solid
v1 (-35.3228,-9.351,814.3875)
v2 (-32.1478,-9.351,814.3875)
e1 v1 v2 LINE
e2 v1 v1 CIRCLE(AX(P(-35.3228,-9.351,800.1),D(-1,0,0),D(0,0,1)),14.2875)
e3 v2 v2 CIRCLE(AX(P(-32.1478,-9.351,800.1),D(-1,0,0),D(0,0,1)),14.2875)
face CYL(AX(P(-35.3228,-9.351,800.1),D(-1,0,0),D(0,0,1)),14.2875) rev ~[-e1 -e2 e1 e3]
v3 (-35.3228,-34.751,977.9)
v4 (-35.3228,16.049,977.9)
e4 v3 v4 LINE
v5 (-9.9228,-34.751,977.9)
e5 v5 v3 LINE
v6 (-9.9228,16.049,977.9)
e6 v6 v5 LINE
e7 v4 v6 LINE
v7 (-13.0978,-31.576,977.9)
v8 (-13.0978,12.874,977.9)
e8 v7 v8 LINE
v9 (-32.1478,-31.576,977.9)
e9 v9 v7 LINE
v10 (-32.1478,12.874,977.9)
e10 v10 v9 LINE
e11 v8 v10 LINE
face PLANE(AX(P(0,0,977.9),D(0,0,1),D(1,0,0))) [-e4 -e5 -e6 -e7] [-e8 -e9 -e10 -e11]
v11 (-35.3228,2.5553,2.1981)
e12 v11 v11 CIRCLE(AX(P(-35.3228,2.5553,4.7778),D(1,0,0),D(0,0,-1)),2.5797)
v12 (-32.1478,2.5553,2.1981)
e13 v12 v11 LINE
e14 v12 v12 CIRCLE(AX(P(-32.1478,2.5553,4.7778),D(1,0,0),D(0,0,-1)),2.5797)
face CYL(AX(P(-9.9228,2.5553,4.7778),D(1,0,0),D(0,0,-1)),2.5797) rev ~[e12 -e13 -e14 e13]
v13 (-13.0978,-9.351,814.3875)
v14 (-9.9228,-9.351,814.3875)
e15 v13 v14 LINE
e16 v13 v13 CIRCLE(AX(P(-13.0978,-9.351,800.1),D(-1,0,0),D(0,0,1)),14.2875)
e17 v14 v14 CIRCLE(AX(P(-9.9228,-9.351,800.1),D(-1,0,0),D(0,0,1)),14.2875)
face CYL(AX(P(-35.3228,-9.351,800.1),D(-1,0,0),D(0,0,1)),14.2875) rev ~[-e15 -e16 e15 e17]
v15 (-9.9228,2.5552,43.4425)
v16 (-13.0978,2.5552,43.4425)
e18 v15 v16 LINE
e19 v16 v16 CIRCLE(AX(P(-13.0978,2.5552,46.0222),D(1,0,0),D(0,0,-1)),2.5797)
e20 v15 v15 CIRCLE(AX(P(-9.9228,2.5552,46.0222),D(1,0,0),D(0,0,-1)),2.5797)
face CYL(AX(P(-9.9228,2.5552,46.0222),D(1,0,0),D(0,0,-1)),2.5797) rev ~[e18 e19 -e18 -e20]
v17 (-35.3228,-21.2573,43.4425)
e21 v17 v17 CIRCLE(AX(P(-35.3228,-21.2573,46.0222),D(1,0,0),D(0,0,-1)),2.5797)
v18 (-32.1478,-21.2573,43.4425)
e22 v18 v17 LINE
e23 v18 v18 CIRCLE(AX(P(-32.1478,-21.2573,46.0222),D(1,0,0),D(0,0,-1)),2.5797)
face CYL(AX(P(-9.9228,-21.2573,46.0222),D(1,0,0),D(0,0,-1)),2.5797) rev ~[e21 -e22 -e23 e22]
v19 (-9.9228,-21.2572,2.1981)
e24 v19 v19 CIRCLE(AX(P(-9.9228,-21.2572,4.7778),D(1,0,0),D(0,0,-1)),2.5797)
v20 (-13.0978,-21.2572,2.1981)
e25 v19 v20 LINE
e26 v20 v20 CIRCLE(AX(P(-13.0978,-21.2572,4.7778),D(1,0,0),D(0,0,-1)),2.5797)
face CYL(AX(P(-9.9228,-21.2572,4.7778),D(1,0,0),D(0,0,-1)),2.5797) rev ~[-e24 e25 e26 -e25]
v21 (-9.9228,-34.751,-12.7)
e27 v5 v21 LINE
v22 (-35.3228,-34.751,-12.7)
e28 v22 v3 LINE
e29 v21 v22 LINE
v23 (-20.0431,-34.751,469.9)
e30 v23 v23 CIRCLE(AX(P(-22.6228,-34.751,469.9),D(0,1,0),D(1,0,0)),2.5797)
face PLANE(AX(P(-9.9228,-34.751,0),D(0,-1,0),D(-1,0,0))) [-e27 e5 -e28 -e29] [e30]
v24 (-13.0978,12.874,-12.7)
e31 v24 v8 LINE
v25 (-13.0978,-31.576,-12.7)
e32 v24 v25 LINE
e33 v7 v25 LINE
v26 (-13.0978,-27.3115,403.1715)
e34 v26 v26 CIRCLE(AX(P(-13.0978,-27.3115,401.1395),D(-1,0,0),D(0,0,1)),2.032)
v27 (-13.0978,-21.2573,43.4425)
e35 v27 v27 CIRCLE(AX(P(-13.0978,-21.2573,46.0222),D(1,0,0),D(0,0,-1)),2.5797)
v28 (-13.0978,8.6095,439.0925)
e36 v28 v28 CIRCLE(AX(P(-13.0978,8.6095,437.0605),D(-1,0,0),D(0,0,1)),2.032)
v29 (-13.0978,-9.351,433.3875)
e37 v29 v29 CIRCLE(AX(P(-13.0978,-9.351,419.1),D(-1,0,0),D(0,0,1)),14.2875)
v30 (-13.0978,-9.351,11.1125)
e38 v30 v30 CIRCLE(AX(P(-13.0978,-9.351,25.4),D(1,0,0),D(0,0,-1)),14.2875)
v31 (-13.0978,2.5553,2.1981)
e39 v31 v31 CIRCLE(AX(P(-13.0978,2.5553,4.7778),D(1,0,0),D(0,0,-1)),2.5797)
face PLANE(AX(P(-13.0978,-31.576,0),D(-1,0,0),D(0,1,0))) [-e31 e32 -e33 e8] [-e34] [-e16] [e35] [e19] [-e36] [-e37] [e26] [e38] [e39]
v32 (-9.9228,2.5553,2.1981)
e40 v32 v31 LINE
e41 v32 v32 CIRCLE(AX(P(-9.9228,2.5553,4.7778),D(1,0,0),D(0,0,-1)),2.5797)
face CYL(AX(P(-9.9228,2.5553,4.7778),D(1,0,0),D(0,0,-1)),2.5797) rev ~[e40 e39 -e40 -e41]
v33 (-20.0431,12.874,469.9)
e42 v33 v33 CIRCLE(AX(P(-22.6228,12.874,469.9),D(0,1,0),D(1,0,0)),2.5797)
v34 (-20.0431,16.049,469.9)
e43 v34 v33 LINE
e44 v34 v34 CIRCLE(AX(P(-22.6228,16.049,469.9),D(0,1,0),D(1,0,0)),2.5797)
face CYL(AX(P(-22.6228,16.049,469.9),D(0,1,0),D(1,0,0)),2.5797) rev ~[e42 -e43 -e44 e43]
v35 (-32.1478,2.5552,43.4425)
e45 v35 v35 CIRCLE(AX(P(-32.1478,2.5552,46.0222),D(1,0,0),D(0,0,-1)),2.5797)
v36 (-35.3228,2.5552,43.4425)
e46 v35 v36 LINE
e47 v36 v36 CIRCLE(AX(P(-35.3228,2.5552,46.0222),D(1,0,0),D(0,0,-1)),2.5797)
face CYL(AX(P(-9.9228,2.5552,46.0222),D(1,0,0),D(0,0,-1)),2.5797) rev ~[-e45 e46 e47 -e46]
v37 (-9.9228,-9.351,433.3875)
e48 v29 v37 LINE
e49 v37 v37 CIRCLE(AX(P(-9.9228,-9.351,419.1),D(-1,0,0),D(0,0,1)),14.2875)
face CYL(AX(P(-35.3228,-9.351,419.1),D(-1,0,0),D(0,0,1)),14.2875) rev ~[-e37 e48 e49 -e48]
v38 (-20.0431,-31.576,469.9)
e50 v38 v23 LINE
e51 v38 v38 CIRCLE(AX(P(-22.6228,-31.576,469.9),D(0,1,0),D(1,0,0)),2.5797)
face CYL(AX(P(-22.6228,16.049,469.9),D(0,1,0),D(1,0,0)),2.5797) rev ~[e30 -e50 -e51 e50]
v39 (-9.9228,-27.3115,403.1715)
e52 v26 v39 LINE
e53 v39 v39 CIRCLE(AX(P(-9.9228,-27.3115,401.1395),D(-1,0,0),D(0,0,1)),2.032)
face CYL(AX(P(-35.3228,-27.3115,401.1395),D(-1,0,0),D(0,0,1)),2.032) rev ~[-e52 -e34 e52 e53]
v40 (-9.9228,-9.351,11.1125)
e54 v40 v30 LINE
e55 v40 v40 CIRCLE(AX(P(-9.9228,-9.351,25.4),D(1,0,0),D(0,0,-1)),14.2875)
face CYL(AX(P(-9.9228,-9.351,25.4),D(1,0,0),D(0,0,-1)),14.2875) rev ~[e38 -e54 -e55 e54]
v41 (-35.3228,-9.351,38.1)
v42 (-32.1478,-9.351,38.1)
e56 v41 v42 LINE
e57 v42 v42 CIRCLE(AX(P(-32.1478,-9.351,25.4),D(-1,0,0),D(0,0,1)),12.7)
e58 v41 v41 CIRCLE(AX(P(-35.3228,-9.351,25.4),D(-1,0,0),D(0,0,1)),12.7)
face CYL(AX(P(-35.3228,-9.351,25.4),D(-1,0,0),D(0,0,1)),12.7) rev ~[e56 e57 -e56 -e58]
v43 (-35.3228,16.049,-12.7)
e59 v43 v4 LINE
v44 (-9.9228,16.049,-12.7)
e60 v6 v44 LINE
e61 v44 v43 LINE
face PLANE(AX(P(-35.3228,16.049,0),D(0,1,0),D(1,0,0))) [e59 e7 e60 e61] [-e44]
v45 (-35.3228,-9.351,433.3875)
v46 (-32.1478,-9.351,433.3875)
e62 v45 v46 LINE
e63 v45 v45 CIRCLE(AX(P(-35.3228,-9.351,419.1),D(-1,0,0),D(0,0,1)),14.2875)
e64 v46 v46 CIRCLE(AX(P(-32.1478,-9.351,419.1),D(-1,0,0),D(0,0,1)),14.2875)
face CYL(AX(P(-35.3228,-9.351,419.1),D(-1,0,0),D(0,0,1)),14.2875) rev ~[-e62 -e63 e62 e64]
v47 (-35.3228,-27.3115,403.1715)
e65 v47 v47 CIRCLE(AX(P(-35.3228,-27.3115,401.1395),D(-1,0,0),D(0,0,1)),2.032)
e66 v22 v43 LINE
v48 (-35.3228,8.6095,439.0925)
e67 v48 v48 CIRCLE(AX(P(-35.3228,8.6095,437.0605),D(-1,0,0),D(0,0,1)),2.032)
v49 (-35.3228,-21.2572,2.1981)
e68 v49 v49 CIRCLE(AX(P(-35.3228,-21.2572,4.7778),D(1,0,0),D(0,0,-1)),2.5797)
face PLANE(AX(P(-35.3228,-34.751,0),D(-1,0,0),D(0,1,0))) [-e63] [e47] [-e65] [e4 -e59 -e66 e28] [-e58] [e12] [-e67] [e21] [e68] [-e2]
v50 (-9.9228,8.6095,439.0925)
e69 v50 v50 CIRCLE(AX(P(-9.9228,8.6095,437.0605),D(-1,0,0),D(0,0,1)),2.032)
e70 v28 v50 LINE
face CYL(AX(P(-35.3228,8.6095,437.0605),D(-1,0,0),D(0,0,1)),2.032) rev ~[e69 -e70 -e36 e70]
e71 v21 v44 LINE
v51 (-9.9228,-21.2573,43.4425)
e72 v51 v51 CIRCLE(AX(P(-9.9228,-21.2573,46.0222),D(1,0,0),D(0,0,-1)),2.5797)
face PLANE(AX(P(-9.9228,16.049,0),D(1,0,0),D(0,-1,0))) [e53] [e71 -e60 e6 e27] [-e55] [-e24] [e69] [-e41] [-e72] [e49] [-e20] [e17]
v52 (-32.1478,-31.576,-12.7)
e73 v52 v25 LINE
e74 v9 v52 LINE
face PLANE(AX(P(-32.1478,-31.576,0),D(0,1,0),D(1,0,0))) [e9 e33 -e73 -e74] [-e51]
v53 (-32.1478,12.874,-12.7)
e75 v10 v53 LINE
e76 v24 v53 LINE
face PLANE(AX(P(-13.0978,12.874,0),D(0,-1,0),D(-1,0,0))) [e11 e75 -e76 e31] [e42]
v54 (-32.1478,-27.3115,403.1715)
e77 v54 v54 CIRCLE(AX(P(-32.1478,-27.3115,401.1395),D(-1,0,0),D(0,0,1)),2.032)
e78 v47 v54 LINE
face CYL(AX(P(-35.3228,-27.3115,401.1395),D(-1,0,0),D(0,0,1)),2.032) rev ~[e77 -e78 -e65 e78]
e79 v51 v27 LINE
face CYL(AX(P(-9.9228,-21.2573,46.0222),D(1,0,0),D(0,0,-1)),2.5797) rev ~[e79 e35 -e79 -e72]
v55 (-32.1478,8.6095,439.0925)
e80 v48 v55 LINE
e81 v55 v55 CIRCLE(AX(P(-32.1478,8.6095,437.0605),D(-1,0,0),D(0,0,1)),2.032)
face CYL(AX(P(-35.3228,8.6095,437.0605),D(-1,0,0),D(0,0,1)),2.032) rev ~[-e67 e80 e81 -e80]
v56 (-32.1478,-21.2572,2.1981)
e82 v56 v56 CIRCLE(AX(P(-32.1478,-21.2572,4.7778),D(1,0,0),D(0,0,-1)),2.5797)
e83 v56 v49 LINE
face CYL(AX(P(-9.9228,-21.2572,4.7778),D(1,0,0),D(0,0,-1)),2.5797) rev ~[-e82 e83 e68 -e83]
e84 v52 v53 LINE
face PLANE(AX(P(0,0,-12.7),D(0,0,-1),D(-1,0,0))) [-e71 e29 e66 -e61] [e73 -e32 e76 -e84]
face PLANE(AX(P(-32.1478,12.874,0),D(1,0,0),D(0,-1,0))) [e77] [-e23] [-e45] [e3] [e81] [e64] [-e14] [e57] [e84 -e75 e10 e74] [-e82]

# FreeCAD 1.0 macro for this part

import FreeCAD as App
import Part
import Sketcher

V = App.Vector
Q = App.Units.Quantity

doc = App.newDocument("Part")
params = doc.addObject("Spreadsheet::Sheet", "Params")
for row, (alias, value) in enumerate([
    ("sketch1_width", "1 in"),
    ("sketch1_height", "2 in"),
    ("pad1_length", "38.5 in"),
    ("sketch2_diameter", "1 in"),
    ("pocket1_length", "0.5 in"),
    ("sketch3_diameter", "1.125 in"),
    ("pocket2_length", "1 in"),
    ("sketch4_diameter", "1.125 in"),
    ("pocket3_length", "1 in"),
    ("sketch5_diameter", "0.16 in"),
    ("pocket4_length", "1 in"),
    ("sketch6_diameter", "1.125 in"),
    ("pocket5_length", "0.5 in"),
    ("sketch7_diameter", "0.203126 in"),
    ("pocket6_length", "1 in"),
    ("sketch8_width", "1 in"),
    ("sketch8_height", "2 in"),
    ("pad2_length", "0.5 in"),
    ("sketch9_diameter", "0.203126 in"),
    ("pocket7_length", "4 in"),
], start=1):
    params.set(f"A{row}", alias)
    params.set(f"B{row}", "=" + value)
    params.setAlias(f"B{row}", alias)

body = doc.addObject("PartDesign::Body", "Body")

# Sketch on XY plane
sketch1 = doc.addObject("Sketcher::SketchObject", "Sketch")
body.addObject(sketch1)
sketch1.AttachmentSupport = (doc.XY_Plane, [""])
sketch1.MapMode = "FlatFace"
sketch1.addGeometry(Part.LineSegment(V(-10, 16, 0), V(-35, 16, 0)), False)
sketch1.addGeometry(Part.LineSegment(V(-35, 16, 0), V(-35, -35, 0)), False)
sketch1.addGeometry(Part.LineSegment(V(-35, -35, 0), V(-10, -35, 0)), False)
sketch1.addGeometry(Part.LineSegment(V(-10, -35, 0), V(-10, 16, 0)), False)
sketch1.addGeometry(Part.LineSegment(V(-32, 13, 0), V(-13, 13, 0)), False)
sketch1.addGeometry(Part.LineSegment(V(-13, 13, 0), V(-13, -32, 0)), False)
sketch1.addGeometry(Part.LineSegment(V(-13, -32, 0), V(-32, -32, 0)), False)
sketch1.addGeometry(Part.LineSegment(V(-32, -32, 0), V(-32, 13, 0)), False)
sketch1.addConstraint(Sketcher.Constraint("Coincident", 0, 2, 1, 1))
sketch1.addConstraint(Sketcher.Constraint("Coincident", 1, 2, 2, 1))
sketch1.addConstraint(Sketcher.Constraint("Coincident", 2, 2, 3, 1))
sketch1.addConstraint(Sketcher.Constraint("Coincident", 3, 2, 0, 1))
sketch1.addConstraint(Sketcher.Constraint("Coincident", 4, 2, 5, 1))
sketch1.addConstraint(Sketcher.Constraint("Coincident", 5, 2, 6, 1))
sketch1.addConstraint(Sketcher.Constraint("Coincident", 6, 2, 7, 1))
sketch1.addConstraint(Sketcher.Constraint("Coincident", 7, 2, 4, 1))
sketch1.addConstraint(Sketcher.Constraint("Horizontal", 0))
sketch1.addConstraint(Sketcher.Constraint("Vertical", 1))
sketch1.addConstraint(Sketcher.Constraint("Horizontal", 2))
sketch1.addConstraint(Sketcher.Constraint("Vertical", 3))
sketch1.addConstraint(Sketcher.Constraint("Horizontal", 4))
sketch1.addConstraint(Sketcher.Constraint("Vertical", 5))
sketch1.addConstraint(Sketcher.Constraint("Horizontal", 6))
sketch1.addConstraint(Sketcher.Constraint("Vertical", 7))
sketch1.addConstraint(Sketcher.Constraint("DistanceX", 0, 2, 0, 1, Q("1 in")))
sketch1.addConstraint(Sketcher.Constraint("DistanceY", 1, 2, 1, 1, Q("2 in")))
sketch1.addConstraint(Sketcher.Constraint("DistanceX", 4, 2, 3, 2, Q("0.125 in")))
sketch1.addConstraint(Sketcher.Constraint("DistanceY", 4, 2, 3, 2, Q("0.125 in")))
sketch1.addConstraint(Sketcher.Constraint("DistanceY", 2, 2, 5, 2, Q("0.125 in")))
sketch1.addConstraint(Sketcher.Constraint("DistanceX", 1, 2, 6, 2, Q("0.125 in")))
sketch1.addConstraint(Sketcher.Constraint("DistanceX", 0, 2, -1, 1, Q("35.3228 mm")))
sketch1.addConstraint(Sketcher.Constraint("DistanceY", -1, 1, 0, 2, Q("16.049 mm")))
sketch1.setExpression("Constraints[16]", "Params.sketch1_width")
sketch1.setExpression("Constraints[17]", "Params.sketch1_height")
pad1 = doc.addObject("PartDesign::Pad", "Pad")
body.addObject(pad1)
pad1.Profile = sketch1
pad1.setExpression("Length", "Params.pad1_length")

# Sketch on YZ plane
sketch2 = doc.addObject("Sketcher::SketchObject", "Sketch001")
body.addObject(sketch2)
sketch2.AttachmentSupport = (doc.YZ_Plane, [""])
sketch2.MapMode = "FlatFace"
sketch2.AttachmentOffset = App.Placement(V(0, 0, -35.3228), App.Rotation())
sketch2.addGeometry(Part.Circle(V(-9, 25, 0), V(0, 0, 1), 13), False)
sketch2.addConstraint(Sketcher.Constraint("Diameter", 0, Q("1 in")))
sketch2.addConstraint(Sketcher.Constraint("DistanceY", -1, 1, 0, 3, Q("1 in")))
sketch2.addConstraint(Sketcher.Constraint("DistanceX", 0, 3, -1, 1, Q("9.351 mm")))
sketch2.setExpression("Constraints[0]", "Params.sketch2_diameter")
pocket1 = doc.addObject("PartDesign::Pocket", "Pocket")
body.addObject(pocket1)
pocket1.Profile = sketch2
pocket1.setExpression("Length", "Params.pocket1_length")
pocket1.Reversed = True

# Sketch on YZ plane
sketch3 = doc.addObject("Sketcher::SketchObject", "Sketch002")
body.addObject(sketch3)
sketch3.AttachmentSupport = (doc.YZ_Plane, [""])
sketch3.MapMode = "FlatFace"
sketch3.AttachmentOffset = App.Placement(V(0, 0, -35.3228), App.Rotation())
sketch3.addGeometry(Part.Circle(V(-9, 800, 0), V(0, 0, 1), 14), False)
sketch3.addConstraint(Sketcher.Constraint("Diameter", 0, Q("1.125 in")))
sketch3.addConstraint(Sketcher.Constraint("DistanceY", -1, 1, 0, 3, Q("31.5 in")))
sketch3.addConstraint(Sketcher.Constraint("DistanceX", 0, 3, -1, 1, Q("9.351 mm")))
sketch3.setExpression("Constraints[0]", "Params.sketch3_diameter")
pocket2 = doc.addObject("PartDesign::Pocket", "Pocket001")
body.addObject(pocket2)
pocket2.Profile = sketch3
pocket2.setExpression("Length", "Params.pocket2_length")
pocket2.Reversed = True

# Sketch on YZ plane
sketch4 = doc.addObject("Sketcher::SketchObject", "Sketch003")
body.addObject(sketch4)
sketch4.AttachmentSupport = (doc.YZ_Plane, [""])
sketch4.MapMode = "FlatFace"
sketch4.AttachmentOffset = App.Placement(V(0, 0, -35.3228), App.Rotation())
sketch4.addGeometry(Part.Circle(V(-9, 419, 0), V(0, 0, 1), 14), False)
sketch4.addConstraint(Sketcher.Constraint("Diameter", 0, Q("1.125 in")))
sketch4.addConstraint(Sketcher.Constraint("DistanceY", -1, 1, 0, 3, Q("16.5 in")))
sketch4.addConstraint(Sketcher.Constraint("DistanceX", 0, 3, -1, 1, Q("9.351 mm")))
sketch4.setExpression("Constraints[0]", "Params.sketch4_diameter")
pocket3 = doc.addObject("PartDesign::Pocket", "Pocket002")
body.addObject(pocket3)
pocket3.Profile = sketch4
pocket3.setExpression("Length", "Params.pocket3_length")
pocket3.Reversed = True

# Sketch on YZ plane
sketch5 = doc.addObject("Sketcher::SketchObject", "Sketch004")
body.addObject(sketch5)
sketch5.AttachmentSupport = (doc.YZ_Plane, [""])
sketch5.MapMode = "FlatFace"
sketch5.AttachmentOffset = App.Placement(V(0, 0, -35.3228), App.Rotation())
sketch5.addGeometry(Part.Circle(V(-27.3, 401.1, 0), V(0, 0, 1), 2), False)
sketch5.addGeometry(Part.Circle(V(8.6, 437.1, 0), V(0, 0, 1), 2), False)
sketch5.addConstraint(Sketcher.Constraint("Equal", 0, 1))
sketch5.addConstraint(Sketcher.Constraint("Diameter", 0, Q("0.16 in")))
sketch5.addConstraint(Sketcher.Constraint("DistanceY", -1, 1, 0, 3, Q("15.7929 in")))
sketch5.addConstraint(Sketcher.Constraint("DistanceY", -1, 1, 1, 3, Q("17.2071 in")))
sketch5.addConstraint(Sketcher.Constraint("DistanceX", 0, 3, -1, 1, Q("27.3115 mm")))
sketch5.addConstraint(Sketcher.Constraint("DistanceX", -1, 1, 1, 3, Q("8.6095 mm")))
sketch5.setExpression("Constraints[1]", "Params.sketch5_diameter")
pocket4 = doc.addObject("PartDesign::Pocket", "Pocket003")
body.addObject(pocket4)
pocket4.Profile = sketch5
pocket4.setExpression("Length", "Params.pocket4_length")
pocket4.Reversed = True

# Sketch on YZ plane
sketch6 = doc.addObject("Sketcher::SketchObject", "Sketch005")
body.addObject(sketch6)
sketch6.AttachmentSupport = (doc.YZ_Plane, [""])
sketch6.MapMode = "FlatFace"
sketch6.AttachmentOffset = App.Placement(V(0, 0, -9.9228), App.Rotation())
sketch6.addGeometry(Part.Circle(V(-9, 25, 0), V(0, 0, 1), 14), False)
sketch6.addConstraint(Sketcher.Constraint("Diameter", 0, Q("1.125 in")))
sketch6.addConstraint(Sketcher.Constraint("DistanceY", -1, 1, 0, 3, Q("1 in")))
sketch6.addConstraint(Sketcher.Constraint("DistanceX", 0, 3, -1, 1, Q("9.351 mm")))
sketch6.setExpression("Constraints[0]", "Params.sketch6_diameter")
pocket5 = doc.addObject("PartDesign::Pocket", "Pocket004")
body.addObject(pocket5)
pocket5.Profile = sketch6
pocket5.setExpression("Length", "Params.pocket5_length")

# Sketch on YZ plane
sketch7 = doc.addObject("Sketcher::SketchObject", "Sketch006")
body.addObject(sketch7)
sketch7.AttachmentSupport = (doc.YZ_Plane, [""])
sketch7.MapMode = "FlatFace"
sketch7.AttachmentOffset = App.Placement(V(0, 0, -9.9228), App.Rotation())
sketch7.addGeometry(Part.Circle(V(2.6, 4.8, 0), V(0, 0, 1), 2.6), False)
sketch7.addGeometry(Part.Circle(V(-21.3, 4.8, 0), V(0, 0, 1), 2.6), False)
sketch7.addGeometry(Part.Circle(V(-21.3, 46, 0), V(0, 0, 1), 2.6), False)
sketch7.addGeometry(Part.Circle(V(2.6, 46, 0), V(0, 0, 1), 2.6), False)
sketch7.addConstraint(Sketcher.Constraint("Equal", 0, 1))
sketch7.addConstraint(Sketcher.Constraint("Equal", 1, 2))
sketch7.addConstraint(Sketcher.Constraint("Equal", 2, 3))
sketch7.addConstraint(Sketcher.Constraint("Horizontal", 0, 3, 1, 3))
sketch7.addConstraint(Sketcher.Constraint("Horizontal", 2, 3, 3, 3))
sketch7.addConstraint(Sketcher.Constraint("Vertical", 1, 3, 2, 3))
sketch7.addConstraint(Sketcher.Constraint("Vertical", 0, 3, 3, 3))
sketch7.addConstraint(Sketcher.Constraint("Diameter", 0, Q("0.203126 in")))
sketch7.addConstraint(Sketcher.Constraint("DistanceX", 1, 3, 0, 3, Q("0.9375 in")))
sketch7.addConstraint(Sketcher.Constraint("DistanceX", -1, 1, 0, 3, Q("0.1006 in")))
sketch7.addConstraint(Sketcher.Constraint("DistanceY", -1, 1, 0, 3, Q("0.1881 in")))
sketch7.addConstraint(Sketcher.Constraint("DistanceY", -1, 1, 2, 3, Q("1.8119 in")))
sketch7.setExpression("Constraints[7]", "Params.sketch7_diameter")
pocket6 = doc.addObject("PartDesign::Pocket", "Pocket005")
body.addObject(pocket6)
pocket6.Profile = sketch7
pocket6.setExpression("Length", "Params.pocket6_length")

# Sketch on XY plane
sketch8 = doc.addObject("Sketcher::SketchObject", "Sketch007")
body.addObject(sketch8)
sketch8.AttachmentSupport = (doc.XY_Plane, [""])
sketch8.MapMode = "FlatFace"
sketch8.addGeometry(Part.LineSegment(V(-10, 16, 0), V(-10, -35, 0)), False)
sketch8.addGeometry(Part.LineSegment(V(-10, -35, 0), V(-35, -35, 0)), False)
sketch8.addGeometry(Part.LineSegment(V(-35, -35, 0), V(-35, 16, 0)), False)
sketch8.addGeometry(Part.LineSegment(V(-35, 16, 0), V(-10, 16, 0)), False)
sketch8.addGeometry(Part.LineSegment(V(-13, 13, 0), V(-32, 13, 0)), False)
sketch8.addGeometry(Part.LineSegment(V(-32, 13, 0), V(-32, -32, 0)), False)
sketch8.addGeometry(Part.LineSegment(V(-32, -32, 0), V(-13, -32, 0)), False)
sketch8.addGeometry(Part.LineSegment(V(-13, -32, 0), V(-13, 13, 0)), False)
sketch8.addConstraint(Sketcher.Constraint("Coincident", 0, 2, 1, 1))
sketch8.addConstraint(Sketcher.Constraint("Coincident", 1, 2, 2, 1))
sketch8.addConstraint(Sketcher.Constraint("Coincident", 2, 2, 3, 1))
sketch8.addConstraint(Sketcher.Constraint("Coincident", 3, 2, 0, 1))
sketch8.addConstraint(Sketcher.Constraint("Coincident", 4, 2, 5, 1))
sketch8.addConstraint(Sketcher.Constraint("Coincident", 5, 2, 6, 1))
sketch8.addConstraint(Sketcher.Constraint("Coincident", 6, 2, 7, 1))
sketch8.addConstraint(Sketcher.Constraint("Coincident", 7, 2, 4, 1))
sketch8.addConstraint(Sketcher.Constraint("Vertical", 0))
sketch8.addConstraint(Sketcher.Constraint("Horizontal", 1))
sketch8.addConstraint(Sketcher.Constraint("Vertical", 2))
sketch8.addConstraint(Sketcher.Constraint("Horizontal", 3))
sketch8.addConstraint(Sketcher.Constraint("Horizontal", 4))
sketch8.addConstraint(Sketcher.Constraint("Vertical", 5))
sketch8.addConstraint(Sketcher.Constraint("Horizontal", 6))
sketch8.addConstraint(Sketcher.Constraint("Vertical", 7))
sketch8.addConstraint(Sketcher.Constraint("DistanceX", 1, 2, 1, 1, Q("1 in")))
sketch8.addConstraint(Sketcher.Constraint("DistanceY", 0, 2, 0, 1, Q("2 in")))
sketch8.addConstraint(Sketcher.Constraint("DistanceX", 2, 2, 4, 2, Q("0.125 in")))
sketch8.addConstraint(Sketcher.Constraint("DistanceY", 4, 2, 2, 2, Q("0.125 in")))
sketch8.addConstraint(Sketcher.Constraint("DistanceY", 1, 2, 5, 2, Q("0.125 in")))
sketch8.addConstraint(Sketcher.Constraint("DistanceX", 6, 2, 0, 2, Q("0.125 in")))
sketch8.addConstraint(Sketcher.Constraint("DistanceX", 0, 2, -1, 1, Q("9.9228 mm")))
sketch8.addConstraint(Sketcher.Constraint("DistanceY", 0, 2, -1, 1, Q("34.751 mm")))
sketch8.setExpression("Constraints[16]", "Params.sketch8_width")
sketch8.setExpression("Constraints[17]", "Params.sketch8_height")
pad2 = doc.addObject("PartDesign::Pad", "Pad001")
body.addObject(pad2)
pad2.Profile = sketch8
pad2.setExpression("Length", "Params.pad2_length")
pad2.Reversed = True

# Sketch on XZ plane
sketch9 = doc.addObject("Sketcher::SketchObject", "Sketch008")
body.addObject(sketch9)
sketch9.AttachmentSupport = (doc.XZ_Plane, [""])
sketch9.MapMode = "FlatFace"
sketch9.AttachmentOffset = App.Placement(V(0, 0, -16.049), App.Rotation())
sketch9.addGeometry(Part.Circle(V(-22.6, 469.9, 0), V(0, 0, 1), 2.6), False)
sketch9.addConstraint(Sketcher.Constraint("Diameter", 0, Q("0.203126 in")))
sketch9.addConstraint(Sketcher.Constraint("DistanceY", -1, 1, 0, 3, Q("18.5 in")))
sketch9.addConstraint(Sketcher.Constraint("DistanceX", 0, 3, -1, 1, Q("22.6228 mm")))
sketch9.setExpression("Constraints[0]", "Params.sketch9_diameter")
pocket7 = doc.addObject("PartDesign::Pocket", "Pocket006")
body.addObject(pocket7)
pocket7.Profile = sketch9
pocket7.setExpression("Length", "Params.pocket7_length")
pocket7.Reversed = True

doc.recompute()
